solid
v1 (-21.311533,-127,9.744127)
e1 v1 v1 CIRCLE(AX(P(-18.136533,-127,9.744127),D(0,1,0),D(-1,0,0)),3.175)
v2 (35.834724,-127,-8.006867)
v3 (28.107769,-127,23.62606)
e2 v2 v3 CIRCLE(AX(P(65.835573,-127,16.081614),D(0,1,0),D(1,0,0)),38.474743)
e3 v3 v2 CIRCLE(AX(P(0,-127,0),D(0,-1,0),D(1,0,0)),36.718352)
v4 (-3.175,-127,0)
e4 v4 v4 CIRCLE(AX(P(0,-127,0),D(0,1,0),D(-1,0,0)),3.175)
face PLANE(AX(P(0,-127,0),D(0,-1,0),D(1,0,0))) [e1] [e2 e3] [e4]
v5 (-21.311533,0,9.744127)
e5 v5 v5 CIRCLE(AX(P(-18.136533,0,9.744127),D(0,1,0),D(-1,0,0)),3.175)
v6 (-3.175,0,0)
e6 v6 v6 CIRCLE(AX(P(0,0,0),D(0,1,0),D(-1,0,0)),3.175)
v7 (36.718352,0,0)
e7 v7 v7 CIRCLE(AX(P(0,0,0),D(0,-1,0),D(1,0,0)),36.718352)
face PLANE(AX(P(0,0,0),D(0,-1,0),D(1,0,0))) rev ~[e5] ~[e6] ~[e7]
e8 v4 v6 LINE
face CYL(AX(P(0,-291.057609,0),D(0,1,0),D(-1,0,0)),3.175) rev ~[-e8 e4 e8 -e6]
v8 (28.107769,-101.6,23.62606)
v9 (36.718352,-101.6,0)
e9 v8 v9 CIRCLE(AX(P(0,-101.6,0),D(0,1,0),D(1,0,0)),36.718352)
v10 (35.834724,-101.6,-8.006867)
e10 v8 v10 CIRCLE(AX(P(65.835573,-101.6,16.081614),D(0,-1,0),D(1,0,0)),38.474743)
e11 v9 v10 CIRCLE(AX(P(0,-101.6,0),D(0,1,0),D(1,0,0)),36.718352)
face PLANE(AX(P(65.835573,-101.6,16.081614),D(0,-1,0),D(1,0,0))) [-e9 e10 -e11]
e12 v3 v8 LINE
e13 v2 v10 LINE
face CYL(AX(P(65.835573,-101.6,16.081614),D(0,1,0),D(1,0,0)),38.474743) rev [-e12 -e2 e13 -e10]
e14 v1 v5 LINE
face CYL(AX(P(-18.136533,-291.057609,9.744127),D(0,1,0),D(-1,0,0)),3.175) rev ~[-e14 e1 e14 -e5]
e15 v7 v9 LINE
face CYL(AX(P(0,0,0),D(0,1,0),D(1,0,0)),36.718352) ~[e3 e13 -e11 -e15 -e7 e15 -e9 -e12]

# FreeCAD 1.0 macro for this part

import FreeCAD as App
import Part
import Sketcher
Q = App.Units.Quantity

doc = App.newDocument("Part")
body = doc.addObject("PartDesign::Body", "Body")

# Sketch on XZ plane
sketch1 = doc.addObject("Sketcher::SketchObject", "Sketch")
body.addObject(sketch1)
sketch1.AttachmentSupport = (doc.XZ_Plane, [""])
sketch1.MapMode = "FlatFace"
sketch1.addGeometry(Part.Circle(App.Vector(0, 0, 0), App.Vector(0, 0, 1), 37), False)
sketch1.addConstraint([
    Sketcher.Constraint("Coincident", 0, 3, -1, 1),
    Sketcher.Constraint("Diameter", 0, 73.436704),
])
pad1 = doc.addObject("PartDesign::Pad", "Pad")
body.addObject(pad1)
pad1.Profile = sketch1
pad1.Length = Q("5 in")

# Sketch on XZ plane
sketch2 = doc.addObject("Sketcher::SketchObject", "Sketch001")
body.addObject(sketch2)
sketch2.AttachmentSupport = (doc.XZ_Plane, [""])
sketch2.MapMode = "FlatFace"
sketch2.AttachmentOffset = App.Placement(App.Vector(0, 0, 4 * 25.4), App.Rotation())
sketch2.addGeometry(Part.Circle(App.Vector(66, 16, 0), App.Vector(0, 0, 1), 38), False)
sketch2.addConstraint([
    Sketcher.Constraint("Diameter", 0, 76.949486),
    Sketcher.Constraint("DistanceX", -1, 1, 0, 3, 65.835573),
    Sketcher.Constraint("DistanceY", -1, 1, 0, 3, 16.081614),
])
pocket1 = doc.addObject("PartDesign::Pocket", "Pocket")
body.addObject(pocket1)
pocket1.Profile = sketch2
pocket1.Length = Q("2.47 in")
pocket1.Reversed = True

# Sketch on XZ plane
sketch3 = doc.addObject("Sketcher::SketchObject", "Sketch002")
body.addObject(sketch3)
sketch3.AttachmentSupport = (doc.XZ_Plane, [""])
sketch3.MapMode = "FlatFace"
sketch3.AttachmentOffset = App.Placement(App.Vector(0, 0, 5 * 25.4), App.Rotation())
sketch3.addGeometry([
    Part.Circle(App.Vector(-18.1, 9.7, 0), App.Vector(0, 0, 1), 3.2),
    Part.Circle(App.Vector(0, 0, 0), App.Vector(0, 0, 1), 3.2),
], False)
sketch3.addConstraint([
    Sketcher.Constraint("Coincident", 1, 3, -1, 1),
    Sketcher.Constraint("Equal", 0, 1),
    Sketcher.Constraint("Diameter", 0, Q("0.25 in")),
    Sketcher.Constraint("DistanceX", 0, 3, -1, 1, 18.136533),
    Sketcher.Constraint("DistanceY", -1, 1, 0, 3, 9.744127),
])
doc.recompute()
hole = doc.addObject("PartDesign::Hole", "Hole")
body.addObject(hole)
hole.Profile = sketch3
hole.ThreadType = "None"
hole.Diameter = Q("0.25 in")
hole.DepthType = "ThroughAll"

doc.recompute()
